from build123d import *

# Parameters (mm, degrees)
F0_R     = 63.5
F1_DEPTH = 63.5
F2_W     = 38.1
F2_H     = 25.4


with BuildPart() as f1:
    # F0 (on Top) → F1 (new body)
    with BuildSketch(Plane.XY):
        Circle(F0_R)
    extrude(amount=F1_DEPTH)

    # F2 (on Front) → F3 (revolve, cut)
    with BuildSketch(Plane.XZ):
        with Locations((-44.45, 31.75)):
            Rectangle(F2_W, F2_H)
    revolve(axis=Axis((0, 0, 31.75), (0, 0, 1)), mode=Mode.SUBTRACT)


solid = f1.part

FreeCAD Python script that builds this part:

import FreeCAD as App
import Part
import Sketcher
Q = App.Units.Quantity


def add_polygon(sketch, points):
    """Adds a closed chain of lines whose ends are joined by coincident constraints."""
    first, n = sketch.GeometryCount, len(points)
    for a, b in zip(points, points[1:] + points[:1]):
        sketch.addGeometry(Part.LineSegment(App.Vector(*a, 0), App.Vector(*b, 0)), False)
    for i in range(n):
        sketch.addConstraint(Sketcher.Constraint("Coincident", first + i, 2, first + (i + 1) % n, 1))

doc = App.newDocument("Part")
body = doc.addObject("PartDesign::Body", "Body")

sketch1 = body.newObject("Sketcher::SketchObject", "Sketch")
sketch1.AttachmentSupport = (doc.getObject("XY_Plane"), [""])
sketch1.MapMode = "FlatFace"
sketch1.addGeometry(Part.Circle(App.Vector(0, 0, 0), App.Vector(0, 0, 1), 64), False)
sketch1.addConstraint(Sketcher.Constraint("Coincident", 0, 3, -1, 1))
sketch1.addConstraint(Sketcher.Constraint("Diameter", 0, Q("5 in")))
pad1 = body.newObject("PartDesign::Pad", "Pad")
pad1.Profile = sketch1
pad1.Length = Q("2.5 in")

sketch2 = body.newObject("Sketcher::SketchObject", "Sketch001")
sketch2.AttachmentSupport = (doc.getObject("XZ_Plane"), [""])
sketch2.MapMode = "FlatFace"
add_polygon(sketch2, [(-64, 44), (-64, 19), (-25, 19), (-25, 44)])
sketch2.addConstraint(Sketcher.Constraint("Vertical", 0))
sketch2.addConstraint(Sketcher.Constraint("Horizontal", 1))
sketch2.addConstraint(Sketcher.Constraint("Vertical", 2))
sketch2.addConstraint(Sketcher.Constraint("Horizontal", 3))
sketch2.addConstraint(Sketcher.Constraint("DistanceY", 0, 2, 0, 1, Q("1 in")))
sketch2.addConstraint(Sketcher.Constraint("DistanceX", 1, 1, 1, 2, Q("1.5 in")))
sketch2.addConstraint(Sketcher.Constraint("DistanceX", 1, 2, -1, 1, Q("1 in")))
sketch2.addConstraint(Sketcher.Constraint("DistanceY", -1, 1, 0, 2, Q("0.75 in")))
groove = body.newObject("PartDesign::Groove", "Groove")
groove.Profile = sketch2
groove.ReferenceAxis = (sketch2, ["V_Axis"])
groove.Angle = 360

doc.recompute()
